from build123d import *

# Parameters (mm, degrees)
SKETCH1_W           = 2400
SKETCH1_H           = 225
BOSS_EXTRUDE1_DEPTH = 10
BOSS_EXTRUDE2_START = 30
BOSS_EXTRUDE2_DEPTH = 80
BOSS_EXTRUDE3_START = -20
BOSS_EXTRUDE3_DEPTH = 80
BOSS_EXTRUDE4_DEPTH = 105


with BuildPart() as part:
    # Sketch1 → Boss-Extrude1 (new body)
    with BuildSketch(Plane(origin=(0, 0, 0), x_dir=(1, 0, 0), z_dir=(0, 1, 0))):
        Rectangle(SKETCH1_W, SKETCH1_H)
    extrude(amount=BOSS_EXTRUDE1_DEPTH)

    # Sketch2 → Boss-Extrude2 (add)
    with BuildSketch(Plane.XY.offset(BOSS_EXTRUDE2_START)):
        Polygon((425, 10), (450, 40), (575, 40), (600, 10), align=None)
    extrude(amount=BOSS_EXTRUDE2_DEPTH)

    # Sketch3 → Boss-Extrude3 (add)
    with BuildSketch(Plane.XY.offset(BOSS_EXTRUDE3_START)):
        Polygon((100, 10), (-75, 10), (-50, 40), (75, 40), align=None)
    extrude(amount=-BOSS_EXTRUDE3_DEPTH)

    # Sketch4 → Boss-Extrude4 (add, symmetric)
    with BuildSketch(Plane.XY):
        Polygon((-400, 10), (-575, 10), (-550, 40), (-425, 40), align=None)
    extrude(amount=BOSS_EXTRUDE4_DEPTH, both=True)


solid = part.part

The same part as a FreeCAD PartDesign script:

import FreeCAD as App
import Part
import Sketcher


def add_polygon(sketch, points):
    """Adds a closed chain of lines whose ends are joined by coincident constraints."""
    first, n = sketch.GeometryCount, len(points)
    for a, b in zip(points, points[1:] + points[:1]):
        sketch.addGeometry(Part.LineSegment(App.Vector(*a, 0), App.Vector(*b, 0)), False)
    for i in range(n):
        sketch.addConstraint(Sketcher.Constraint("Coincident", first + i, 2, first + (i + 1) % n, 1))

doc = App.newDocument("Part")
params = doc.addObject("Spreadsheet::Sheet", "Params")
for row, (alias, value) in enumerate([
    ("sketch1_width", "2400 mm"),
    ("sketch1_height", "225 mm"),
    ("pad1_length", "10 mm"),
    ("sketch2_width", "175 mm"),
    ("sketch2_width2", "125 mm"),
    ("pad2_length", "80 mm"),
    ("sketch3_width", "175 mm"),
    ("sketch3_width2", "125 mm"),
    ("pad3_length", "80 mm"),
    ("sketch4_width", "175 mm"),
    ("sketch4_width2", "125 mm"),
    ("pad4_length", "210 mm"),
], start=1):
    params.set(f"A{row}", alias)
    params.set(f"B{row}", "=" + value)
    params.setAlias(f"B{row}", alias)

body = doc.addObject("PartDesign::Body", "Body")

# Sketch on XZ plane
sketch1 = body.newObject("Sketcher::SketchObject", "Sketch")
sketch1.AttachmentSupport = (doc.getObject("XZ_Plane"), [""])
sketch1.MapMode = "FlatFace"
add_polygon(sketch1, [(-1200, -112.5), (-1200, 112.5), (1200, 112.5), (1200, -112.5)])  # lines 0-3
sketch1.addConstraint([
    Sketcher.Constraint("Vertical", 0),
    Sketcher.Constraint("Horizontal", 1),
    Sketcher.Constraint("Vertical", 2),
    Sketcher.Constraint("Horizontal", 3),
    Sketcher.Constraint("Symmetric", 0, 2, 2, 2, -1, 1),
    Sketcher.Constraint("DistanceX", 1, 1, 1, 2, 2400.0),
    Sketcher.Constraint("DistanceY", 0, 1, 0, 2, 225.0),
])
sketch1.setExpression("Constraints[9]", "Params.sketch1_width")
sketch1.setExpression("Constraints[10]", "Params.sketch1_height")
pad1 = body.newObject("PartDesign::Pad", "Pad")
pad1.Profile = sketch1
pad1.setExpression("Length", "Params.pad1_length")
pad1.Reversed = True

# Sketch on XY plane
sketch2 = body.newObject("Sketcher::SketchObject", "Sketch001")
sketch2.AttachmentSupport = (doc.getObject("XY_Plane"), [""])
sketch2.MapMode = "FlatFace"
sketch2.AttachmentOffset = App.Placement(App.Vector(0, 0, 30), App.Rotation())
add_polygon(sketch2, [(450, 40), (425, 10), (600, 10), (575, 40)])  # lines 0-3
sketch2.addConstraint([
    Sketcher.Constraint("Horizontal", 1),
    Sketcher.Constraint("Horizontal", 3),
    Sketcher.Constraint("Equal", 0, 2),
    Sketcher.Constraint("DistanceX", 1, 1, 1, 2, 175.0),
    Sketcher.Constraint("DistanceX", 3, 2, 3, 1, 125.0),
    Sketcher.Constraint("DistanceX", -1, 1, 0, 2, 425.0),
    Sketcher.Constraint("DistanceY", -1, 1, 0, 2, 10.0),
    Sketcher.Constraint("DistanceY", -1, 1, 2, 2, 40.0),
])
sketch2.setExpression("Constraints[7]", "Params.sketch2_width")
sketch2.setExpression("Constraints[8]", "Params.sketch2_width2")
pad2 = body.newObject("PartDesign::Pad", "Pad001")
pad2.Profile = sketch2
pad2.setExpression("Length", "Params.pad2_length")

# Sketch on XY plane
sketch3 = body.newObject("Sketcher::SketchObject", "Sketch002")
sketch3.AttachmentSupport = (doc.getObject("XY_Plane"), [""])
sketch3.MapMode = "FlatFace"
sketch3.AttachmentOffset = App.Placement(App.Vector(0, 0, -20), App.Rotation())
add_polygon(sketch3, [(-75, 10), (100, 10), (75, 40), (-50, 40)])  # lines 0-3
sketch3.addConstraint([
    Sketcher.Constraint("Horizontal", 0),
    Sketcher.Constraint("Horizontal", 2),
    Sketcher.Constraint("Equal", 1, 3),
    Sketcher.Constraint("DistanceX", 0, 1, 0, 2, 175.0),
    Sketcher.Constraint("DistanceX", 2, 2, 2, 1, 125.0),
    Sketcher.Constraint("DistanceX", -1, 1, 0, 2, 100.0),
    Sketcher.Constraint("DistanceY", -1, 1, 0, 2, 10.0),
    Sketcher.Constraint("DistanceY", -1, 1, 1, 2, 40.0),
])
sketch3.setExpression("Constraints[7]", "Params.sketch3_width")
sketch3.setExpression("Constraints[8]", "Params.sketch3_width2")
pad3 = body.newObject("PartDesign::Pad", "Pad002")
pad3.Profile = sketch3
pad3.setExpression("Length", "Params.pad3_length")
pad3.Reversed = True

# Sketch on XY plane
sketch4 = body.newObject("Sketcher::SketchObject", "Sketch003")
sketch4.AttachmentSupport = (doc.getObject("XY_Plane"), [""])
sketch4.MapMode = "FlatFace"
add_polygon(sketch4, [(-575, 10), (-400, 10), (-425, 40), (-550, 40)])  # lines 0-3
sketch4.addConstraint([
    Sketcher.Constraint("Horizontal", 0),
    Sketcher.Constraint("Horizontal", 2),
    Sketcher.Constraint("Equal", 1, 3),
    Sketcher.Constraint("DistanceX", 0, 1, 0, 2, 175.0),
    Sketcher.Constraint("DistanceX", 2, 2, 2, 1, 125.0),
    Sketcher.Constraint("DistanceX", 0, 2, -1, 1, 400.0),
    Sketcher.Constraint("DistanceY", -1, 1, 0, 2, 10.0),
    Sketcher.Constraint("DistanceY", -1, 1, 1, 2, 40.0),
])
sketch4.setExpression("Constraints[7]", "Params.sketch4_width")
sketch4.setExpression("Constraints[8]", "Params.sketch4_width2")
pad4 = body.newObject("PartDesign::Pad", "Pad003")
pad4.Profile = sketch4
pad4.setExpression("Length", "Params.pad4_length")
pad4.Midplane = True

doc.recompute()
